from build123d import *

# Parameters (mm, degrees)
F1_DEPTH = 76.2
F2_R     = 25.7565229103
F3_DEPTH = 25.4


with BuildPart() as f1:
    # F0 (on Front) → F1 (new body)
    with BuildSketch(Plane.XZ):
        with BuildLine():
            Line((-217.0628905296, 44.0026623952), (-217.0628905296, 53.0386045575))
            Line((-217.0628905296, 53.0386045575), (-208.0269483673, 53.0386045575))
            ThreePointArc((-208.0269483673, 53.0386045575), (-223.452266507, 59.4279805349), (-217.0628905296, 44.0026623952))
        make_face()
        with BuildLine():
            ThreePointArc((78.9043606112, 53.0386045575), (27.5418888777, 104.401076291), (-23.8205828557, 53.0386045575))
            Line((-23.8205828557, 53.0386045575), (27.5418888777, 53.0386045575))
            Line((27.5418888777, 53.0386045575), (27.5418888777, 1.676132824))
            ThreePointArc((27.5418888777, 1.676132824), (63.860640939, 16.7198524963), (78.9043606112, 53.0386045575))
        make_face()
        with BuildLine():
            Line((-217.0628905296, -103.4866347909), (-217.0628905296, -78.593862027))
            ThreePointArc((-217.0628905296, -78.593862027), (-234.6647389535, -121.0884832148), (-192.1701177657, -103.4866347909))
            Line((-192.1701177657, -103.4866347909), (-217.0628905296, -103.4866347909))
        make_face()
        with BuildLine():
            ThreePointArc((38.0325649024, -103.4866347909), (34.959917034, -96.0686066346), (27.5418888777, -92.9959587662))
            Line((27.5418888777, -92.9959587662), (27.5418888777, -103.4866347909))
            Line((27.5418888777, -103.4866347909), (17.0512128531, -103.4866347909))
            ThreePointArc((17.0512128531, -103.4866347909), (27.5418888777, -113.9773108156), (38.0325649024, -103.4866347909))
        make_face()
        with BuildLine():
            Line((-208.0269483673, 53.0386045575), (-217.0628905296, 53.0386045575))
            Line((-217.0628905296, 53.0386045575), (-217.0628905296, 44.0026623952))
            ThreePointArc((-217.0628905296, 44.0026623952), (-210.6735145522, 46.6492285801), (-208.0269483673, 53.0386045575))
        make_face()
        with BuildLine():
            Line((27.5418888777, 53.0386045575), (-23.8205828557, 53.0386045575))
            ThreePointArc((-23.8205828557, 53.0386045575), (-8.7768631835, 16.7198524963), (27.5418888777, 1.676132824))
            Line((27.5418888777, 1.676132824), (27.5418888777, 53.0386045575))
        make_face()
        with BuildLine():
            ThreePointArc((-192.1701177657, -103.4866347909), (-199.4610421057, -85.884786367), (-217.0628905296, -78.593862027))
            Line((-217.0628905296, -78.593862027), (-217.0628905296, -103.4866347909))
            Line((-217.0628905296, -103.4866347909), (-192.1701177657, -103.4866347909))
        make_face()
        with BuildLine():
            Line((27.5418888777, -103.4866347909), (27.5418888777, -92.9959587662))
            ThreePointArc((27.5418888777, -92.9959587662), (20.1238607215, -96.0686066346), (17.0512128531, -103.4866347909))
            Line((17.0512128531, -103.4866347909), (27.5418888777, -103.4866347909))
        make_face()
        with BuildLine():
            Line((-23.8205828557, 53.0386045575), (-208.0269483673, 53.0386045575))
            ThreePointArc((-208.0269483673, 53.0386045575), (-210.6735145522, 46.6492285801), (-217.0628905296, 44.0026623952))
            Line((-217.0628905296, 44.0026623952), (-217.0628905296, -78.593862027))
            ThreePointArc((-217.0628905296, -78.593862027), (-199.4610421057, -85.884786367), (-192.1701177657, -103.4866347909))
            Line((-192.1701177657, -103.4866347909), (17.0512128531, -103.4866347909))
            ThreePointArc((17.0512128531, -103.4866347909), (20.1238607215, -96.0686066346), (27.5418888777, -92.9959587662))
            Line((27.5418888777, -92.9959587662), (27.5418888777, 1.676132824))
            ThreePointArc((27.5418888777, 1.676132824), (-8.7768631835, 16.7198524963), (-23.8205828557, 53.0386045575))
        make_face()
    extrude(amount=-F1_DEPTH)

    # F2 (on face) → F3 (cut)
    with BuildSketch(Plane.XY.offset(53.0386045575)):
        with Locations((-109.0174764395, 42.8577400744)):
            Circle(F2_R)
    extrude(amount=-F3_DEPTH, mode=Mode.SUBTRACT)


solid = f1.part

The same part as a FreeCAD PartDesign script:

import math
import FreeCAD as App
import Part
import Sketcher
from FreeCAD import Vector
Q = App.Units.Quantity

doc = App.newDocument("Part")
body = doc.addObject("PartDesign::Body", "Body")

sketch1 = body.newObject("Sketcher::SketchObject", "Sketch")
sketch1.AttachmentSupport = (doc.getObject("XZ_Plane"), [""])
sketch1.MapMode = "FlatFace"
sketch1.addGeometry([
    Part.ArcOfCircle(Part.Circle(Vector(-217, 53, 0), Vector(0, 0, 1), 9), math.radians(0), math.radians(270)),
    Part.LineSegment(Vector(-217, 44, 0), Vector(-217, -79, 0)),
    Part.ArcOfCircle(Part.Circle(Vector(-217, -103, 0), Vector(0, 0, 1), 25), math.radians(90), math.radians(360)),
    Part.LineSegment(Vector(-192, -103, 0), Vector(17, -103, 0)),
    Part.ArcOfCircle(Part.Circle(Vector(28, -103, 0), Vector(0, 0, 1), 10), math.radians(180), math.radians(360)),
    Part.ArcOfCircle(Part.Circle(Vector(28, -103, 0), Vector(0, 0, 1), 10), math.radians(0), math.radians(90)),
    Part.LineSegment(Vector(28, -93, 0), Vector(28, 2, 0)),
    Part.ArcOfCircle(Part.Circle(Vector(28, 53, 0), Vector(0, 0, 1), 51), math.radians(-90), math.radians(180)),
    Part.LineSegment(Vector(-24, 53, 0), Vector(-208, 53, 0)),
], False)
sketch1.addConstraint([
    Sketcher.Constraint("Coincident", 0, 2, 1, 1),
    Sketcher.Constraint("Coincident", 1, 2, 2, 1),
    Sketcher.Constraint("Coincident", 2, 2, 3, 1),
    Sketcher.Constraint("Coincident", 3, 2, 4, 1),
    Sketcher.Constraint("Tangent", 4, 2, 5, 1),
    Sketcher.Constraint("Coincident", 5, 2, 6, 1),
    Sketcher.Constraint("Coincident", 6, 2, 7, 1),
    Sketcher.Constraint("Coincident", 7, 2, 8, 1),
    Sketcher.Constraint("Coincident", 8, 2, 0, 1),
    Sketcher.Constraint("Vertical", 1),
    Sketcher.Constraint("Horizontal", 3),
    Sketcher.Constraint("Vertical", 6),
    Sketcher.Constraint("Horizontal", 8),
    Sketcher.Constraint("Equal", 4, 5),
    Sketcher.Constraint("Horizontal", 2, 3, 4, 3),
    Sketcher.Constraint("Horizontal", 0, 3, 7, 3),
    Sketcher.Constraint("Horizontal", 5, 3, 2, 2),
    Sketcher.Constraint("Horizontal", 3, 2, 4, 2),
    Sketcher.Constraint("Horizontal", 0, 3, 7, 2),
    Sketcher.Constraint("Vertical", 0, 3, 2, 3),
    Sketcher.Constraint("Vertical", 5, 3, 7, 3),
    Sketcher.Constraint("Vertical", 2, 3, 0, 2),
    Sketcher.Constraint("Vertical", 7, 3, 5, 2),
    Sketcher.Constraint("Radius", 7, 51.362472),
    Sketcher.Constraint("Radius", 0, 9.035942),
    Sketcher.Constraint("Radius", 2, 24.892773),
    Sketcher.Constraint("Radius", 4, 10.490676),
    Sketcher.Constraint("DistanceX", 3, 1, 3, 2, 209.221331),
    Sketcher.Constraint("DistanceY", 6, 1, 6, 2, 94.672092),
    Sketcher.Constraint("DistanceX", 0, 3, -1, 1, 217.062891),
    Sketcher.Constraint("DistanceY", 5, 2, -1, 1, 92.995959),
])
pad1 = body.newObject("PartDesign::Pad", "Pad")
pad1.Profile = sketch1
pad1.Length = Q("3 in")
pad1.Reversed = True

sketch2 = body.newObject("Sketcher::SketchObject", "Sketch001")
sketch2.AttachmentSupport = (doc.getObject("XY_Plane"), [""])
sketch2.MapMode = "FlatFace"
sketch2.AttachmentOffset = App.Placement(Vector(0, 0, 53.038605), App.Rotation())
sketch2.addGeometry(Part.Circle(Vector(-109, 43, 0), Vector(0, 0, 1), 26), False)
sketch2.addConstraint([
    Sketcher.Constraint("Diameter", 0, 51.513046),
    Sketcher.Constraint("DistanceY", -1, 1, 0, 3, 42.85774),
    Sketcher.Constraint("DistanceX", 0, 3, -1, 1, 109.017476),
])
pocket1 = body.newObject("PartDesign::Pocket", "Pocket")
pocket1.Profile = sketch2
pocket1.Length = Q("1 in")

doc.recompute()
